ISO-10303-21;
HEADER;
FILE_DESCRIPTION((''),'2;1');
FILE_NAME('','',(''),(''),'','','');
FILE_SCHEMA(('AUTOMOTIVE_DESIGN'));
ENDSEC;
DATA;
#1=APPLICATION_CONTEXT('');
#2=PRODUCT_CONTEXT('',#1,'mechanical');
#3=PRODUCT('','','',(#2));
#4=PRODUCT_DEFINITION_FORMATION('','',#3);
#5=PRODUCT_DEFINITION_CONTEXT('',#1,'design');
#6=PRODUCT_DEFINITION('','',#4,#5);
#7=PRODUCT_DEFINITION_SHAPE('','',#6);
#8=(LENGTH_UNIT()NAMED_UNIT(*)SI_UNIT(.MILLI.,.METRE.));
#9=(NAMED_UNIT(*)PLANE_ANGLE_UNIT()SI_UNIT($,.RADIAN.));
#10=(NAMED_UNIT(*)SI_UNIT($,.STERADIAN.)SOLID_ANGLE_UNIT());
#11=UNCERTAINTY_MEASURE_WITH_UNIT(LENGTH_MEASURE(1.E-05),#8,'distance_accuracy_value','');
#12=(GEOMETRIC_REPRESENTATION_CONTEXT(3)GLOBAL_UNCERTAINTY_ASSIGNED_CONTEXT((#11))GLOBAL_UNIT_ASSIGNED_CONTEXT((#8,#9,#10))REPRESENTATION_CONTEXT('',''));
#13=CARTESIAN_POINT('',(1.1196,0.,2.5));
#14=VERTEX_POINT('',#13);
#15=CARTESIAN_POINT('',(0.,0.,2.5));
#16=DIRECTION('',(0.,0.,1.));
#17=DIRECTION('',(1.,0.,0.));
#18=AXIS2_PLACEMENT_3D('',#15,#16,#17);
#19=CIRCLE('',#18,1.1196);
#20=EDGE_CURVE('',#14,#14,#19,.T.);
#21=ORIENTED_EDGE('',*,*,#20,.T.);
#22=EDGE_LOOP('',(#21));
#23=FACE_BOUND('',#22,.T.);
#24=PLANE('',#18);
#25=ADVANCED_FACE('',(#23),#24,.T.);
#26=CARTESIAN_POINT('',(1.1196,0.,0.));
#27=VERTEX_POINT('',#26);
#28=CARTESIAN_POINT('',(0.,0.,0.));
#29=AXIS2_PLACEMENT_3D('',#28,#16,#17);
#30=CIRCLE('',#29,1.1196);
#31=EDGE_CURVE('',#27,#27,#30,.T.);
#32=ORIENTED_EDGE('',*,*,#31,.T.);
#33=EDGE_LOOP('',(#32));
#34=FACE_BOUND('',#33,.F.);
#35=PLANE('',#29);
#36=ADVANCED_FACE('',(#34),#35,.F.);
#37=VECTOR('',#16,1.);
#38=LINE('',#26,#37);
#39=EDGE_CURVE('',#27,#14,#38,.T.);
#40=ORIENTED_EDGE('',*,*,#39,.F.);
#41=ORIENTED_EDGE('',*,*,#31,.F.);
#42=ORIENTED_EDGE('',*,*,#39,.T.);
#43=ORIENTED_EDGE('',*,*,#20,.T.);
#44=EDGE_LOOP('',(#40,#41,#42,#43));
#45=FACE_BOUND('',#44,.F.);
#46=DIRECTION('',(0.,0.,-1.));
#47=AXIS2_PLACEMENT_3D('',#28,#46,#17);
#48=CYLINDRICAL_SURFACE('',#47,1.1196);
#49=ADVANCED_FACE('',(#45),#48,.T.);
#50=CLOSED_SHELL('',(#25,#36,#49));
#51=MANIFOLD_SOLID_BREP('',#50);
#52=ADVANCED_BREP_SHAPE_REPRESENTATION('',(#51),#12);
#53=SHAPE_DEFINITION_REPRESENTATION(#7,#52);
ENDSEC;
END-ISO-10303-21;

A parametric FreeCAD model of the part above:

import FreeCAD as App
import Part
import Sketcher

V = App.Vector
Q = App.Units.Quantity

doc = App.newDocument("Part")
body = doc.addObject("PartDesign::Body", "Body")

# Sketch on XY plane
sketch1 = body.newObject("Sketcher::SketchObject", "Sketch")
sketch1.AttachmentSupport = (doc.getObject("XY_Plane"), [""])
sketch1.MapMode = "FlatFace"
sketch1.addGeometry(Part.Circle(V(0, 0, 0), V(0, 0, 1), 1.1), False)
sketch1.addConstraint([
    Sketcher.Constraint("Coincident", 0, 3, -1, 1),
    Sketcher.Constraint("Diameter", 0, Q("2.2392 mm")),
])
pad1 = body.newObject("PartDesign::Pad", "Pad")
pad1.Profile = sketch1
pad1.Length = 2.5

doc.recompute()
